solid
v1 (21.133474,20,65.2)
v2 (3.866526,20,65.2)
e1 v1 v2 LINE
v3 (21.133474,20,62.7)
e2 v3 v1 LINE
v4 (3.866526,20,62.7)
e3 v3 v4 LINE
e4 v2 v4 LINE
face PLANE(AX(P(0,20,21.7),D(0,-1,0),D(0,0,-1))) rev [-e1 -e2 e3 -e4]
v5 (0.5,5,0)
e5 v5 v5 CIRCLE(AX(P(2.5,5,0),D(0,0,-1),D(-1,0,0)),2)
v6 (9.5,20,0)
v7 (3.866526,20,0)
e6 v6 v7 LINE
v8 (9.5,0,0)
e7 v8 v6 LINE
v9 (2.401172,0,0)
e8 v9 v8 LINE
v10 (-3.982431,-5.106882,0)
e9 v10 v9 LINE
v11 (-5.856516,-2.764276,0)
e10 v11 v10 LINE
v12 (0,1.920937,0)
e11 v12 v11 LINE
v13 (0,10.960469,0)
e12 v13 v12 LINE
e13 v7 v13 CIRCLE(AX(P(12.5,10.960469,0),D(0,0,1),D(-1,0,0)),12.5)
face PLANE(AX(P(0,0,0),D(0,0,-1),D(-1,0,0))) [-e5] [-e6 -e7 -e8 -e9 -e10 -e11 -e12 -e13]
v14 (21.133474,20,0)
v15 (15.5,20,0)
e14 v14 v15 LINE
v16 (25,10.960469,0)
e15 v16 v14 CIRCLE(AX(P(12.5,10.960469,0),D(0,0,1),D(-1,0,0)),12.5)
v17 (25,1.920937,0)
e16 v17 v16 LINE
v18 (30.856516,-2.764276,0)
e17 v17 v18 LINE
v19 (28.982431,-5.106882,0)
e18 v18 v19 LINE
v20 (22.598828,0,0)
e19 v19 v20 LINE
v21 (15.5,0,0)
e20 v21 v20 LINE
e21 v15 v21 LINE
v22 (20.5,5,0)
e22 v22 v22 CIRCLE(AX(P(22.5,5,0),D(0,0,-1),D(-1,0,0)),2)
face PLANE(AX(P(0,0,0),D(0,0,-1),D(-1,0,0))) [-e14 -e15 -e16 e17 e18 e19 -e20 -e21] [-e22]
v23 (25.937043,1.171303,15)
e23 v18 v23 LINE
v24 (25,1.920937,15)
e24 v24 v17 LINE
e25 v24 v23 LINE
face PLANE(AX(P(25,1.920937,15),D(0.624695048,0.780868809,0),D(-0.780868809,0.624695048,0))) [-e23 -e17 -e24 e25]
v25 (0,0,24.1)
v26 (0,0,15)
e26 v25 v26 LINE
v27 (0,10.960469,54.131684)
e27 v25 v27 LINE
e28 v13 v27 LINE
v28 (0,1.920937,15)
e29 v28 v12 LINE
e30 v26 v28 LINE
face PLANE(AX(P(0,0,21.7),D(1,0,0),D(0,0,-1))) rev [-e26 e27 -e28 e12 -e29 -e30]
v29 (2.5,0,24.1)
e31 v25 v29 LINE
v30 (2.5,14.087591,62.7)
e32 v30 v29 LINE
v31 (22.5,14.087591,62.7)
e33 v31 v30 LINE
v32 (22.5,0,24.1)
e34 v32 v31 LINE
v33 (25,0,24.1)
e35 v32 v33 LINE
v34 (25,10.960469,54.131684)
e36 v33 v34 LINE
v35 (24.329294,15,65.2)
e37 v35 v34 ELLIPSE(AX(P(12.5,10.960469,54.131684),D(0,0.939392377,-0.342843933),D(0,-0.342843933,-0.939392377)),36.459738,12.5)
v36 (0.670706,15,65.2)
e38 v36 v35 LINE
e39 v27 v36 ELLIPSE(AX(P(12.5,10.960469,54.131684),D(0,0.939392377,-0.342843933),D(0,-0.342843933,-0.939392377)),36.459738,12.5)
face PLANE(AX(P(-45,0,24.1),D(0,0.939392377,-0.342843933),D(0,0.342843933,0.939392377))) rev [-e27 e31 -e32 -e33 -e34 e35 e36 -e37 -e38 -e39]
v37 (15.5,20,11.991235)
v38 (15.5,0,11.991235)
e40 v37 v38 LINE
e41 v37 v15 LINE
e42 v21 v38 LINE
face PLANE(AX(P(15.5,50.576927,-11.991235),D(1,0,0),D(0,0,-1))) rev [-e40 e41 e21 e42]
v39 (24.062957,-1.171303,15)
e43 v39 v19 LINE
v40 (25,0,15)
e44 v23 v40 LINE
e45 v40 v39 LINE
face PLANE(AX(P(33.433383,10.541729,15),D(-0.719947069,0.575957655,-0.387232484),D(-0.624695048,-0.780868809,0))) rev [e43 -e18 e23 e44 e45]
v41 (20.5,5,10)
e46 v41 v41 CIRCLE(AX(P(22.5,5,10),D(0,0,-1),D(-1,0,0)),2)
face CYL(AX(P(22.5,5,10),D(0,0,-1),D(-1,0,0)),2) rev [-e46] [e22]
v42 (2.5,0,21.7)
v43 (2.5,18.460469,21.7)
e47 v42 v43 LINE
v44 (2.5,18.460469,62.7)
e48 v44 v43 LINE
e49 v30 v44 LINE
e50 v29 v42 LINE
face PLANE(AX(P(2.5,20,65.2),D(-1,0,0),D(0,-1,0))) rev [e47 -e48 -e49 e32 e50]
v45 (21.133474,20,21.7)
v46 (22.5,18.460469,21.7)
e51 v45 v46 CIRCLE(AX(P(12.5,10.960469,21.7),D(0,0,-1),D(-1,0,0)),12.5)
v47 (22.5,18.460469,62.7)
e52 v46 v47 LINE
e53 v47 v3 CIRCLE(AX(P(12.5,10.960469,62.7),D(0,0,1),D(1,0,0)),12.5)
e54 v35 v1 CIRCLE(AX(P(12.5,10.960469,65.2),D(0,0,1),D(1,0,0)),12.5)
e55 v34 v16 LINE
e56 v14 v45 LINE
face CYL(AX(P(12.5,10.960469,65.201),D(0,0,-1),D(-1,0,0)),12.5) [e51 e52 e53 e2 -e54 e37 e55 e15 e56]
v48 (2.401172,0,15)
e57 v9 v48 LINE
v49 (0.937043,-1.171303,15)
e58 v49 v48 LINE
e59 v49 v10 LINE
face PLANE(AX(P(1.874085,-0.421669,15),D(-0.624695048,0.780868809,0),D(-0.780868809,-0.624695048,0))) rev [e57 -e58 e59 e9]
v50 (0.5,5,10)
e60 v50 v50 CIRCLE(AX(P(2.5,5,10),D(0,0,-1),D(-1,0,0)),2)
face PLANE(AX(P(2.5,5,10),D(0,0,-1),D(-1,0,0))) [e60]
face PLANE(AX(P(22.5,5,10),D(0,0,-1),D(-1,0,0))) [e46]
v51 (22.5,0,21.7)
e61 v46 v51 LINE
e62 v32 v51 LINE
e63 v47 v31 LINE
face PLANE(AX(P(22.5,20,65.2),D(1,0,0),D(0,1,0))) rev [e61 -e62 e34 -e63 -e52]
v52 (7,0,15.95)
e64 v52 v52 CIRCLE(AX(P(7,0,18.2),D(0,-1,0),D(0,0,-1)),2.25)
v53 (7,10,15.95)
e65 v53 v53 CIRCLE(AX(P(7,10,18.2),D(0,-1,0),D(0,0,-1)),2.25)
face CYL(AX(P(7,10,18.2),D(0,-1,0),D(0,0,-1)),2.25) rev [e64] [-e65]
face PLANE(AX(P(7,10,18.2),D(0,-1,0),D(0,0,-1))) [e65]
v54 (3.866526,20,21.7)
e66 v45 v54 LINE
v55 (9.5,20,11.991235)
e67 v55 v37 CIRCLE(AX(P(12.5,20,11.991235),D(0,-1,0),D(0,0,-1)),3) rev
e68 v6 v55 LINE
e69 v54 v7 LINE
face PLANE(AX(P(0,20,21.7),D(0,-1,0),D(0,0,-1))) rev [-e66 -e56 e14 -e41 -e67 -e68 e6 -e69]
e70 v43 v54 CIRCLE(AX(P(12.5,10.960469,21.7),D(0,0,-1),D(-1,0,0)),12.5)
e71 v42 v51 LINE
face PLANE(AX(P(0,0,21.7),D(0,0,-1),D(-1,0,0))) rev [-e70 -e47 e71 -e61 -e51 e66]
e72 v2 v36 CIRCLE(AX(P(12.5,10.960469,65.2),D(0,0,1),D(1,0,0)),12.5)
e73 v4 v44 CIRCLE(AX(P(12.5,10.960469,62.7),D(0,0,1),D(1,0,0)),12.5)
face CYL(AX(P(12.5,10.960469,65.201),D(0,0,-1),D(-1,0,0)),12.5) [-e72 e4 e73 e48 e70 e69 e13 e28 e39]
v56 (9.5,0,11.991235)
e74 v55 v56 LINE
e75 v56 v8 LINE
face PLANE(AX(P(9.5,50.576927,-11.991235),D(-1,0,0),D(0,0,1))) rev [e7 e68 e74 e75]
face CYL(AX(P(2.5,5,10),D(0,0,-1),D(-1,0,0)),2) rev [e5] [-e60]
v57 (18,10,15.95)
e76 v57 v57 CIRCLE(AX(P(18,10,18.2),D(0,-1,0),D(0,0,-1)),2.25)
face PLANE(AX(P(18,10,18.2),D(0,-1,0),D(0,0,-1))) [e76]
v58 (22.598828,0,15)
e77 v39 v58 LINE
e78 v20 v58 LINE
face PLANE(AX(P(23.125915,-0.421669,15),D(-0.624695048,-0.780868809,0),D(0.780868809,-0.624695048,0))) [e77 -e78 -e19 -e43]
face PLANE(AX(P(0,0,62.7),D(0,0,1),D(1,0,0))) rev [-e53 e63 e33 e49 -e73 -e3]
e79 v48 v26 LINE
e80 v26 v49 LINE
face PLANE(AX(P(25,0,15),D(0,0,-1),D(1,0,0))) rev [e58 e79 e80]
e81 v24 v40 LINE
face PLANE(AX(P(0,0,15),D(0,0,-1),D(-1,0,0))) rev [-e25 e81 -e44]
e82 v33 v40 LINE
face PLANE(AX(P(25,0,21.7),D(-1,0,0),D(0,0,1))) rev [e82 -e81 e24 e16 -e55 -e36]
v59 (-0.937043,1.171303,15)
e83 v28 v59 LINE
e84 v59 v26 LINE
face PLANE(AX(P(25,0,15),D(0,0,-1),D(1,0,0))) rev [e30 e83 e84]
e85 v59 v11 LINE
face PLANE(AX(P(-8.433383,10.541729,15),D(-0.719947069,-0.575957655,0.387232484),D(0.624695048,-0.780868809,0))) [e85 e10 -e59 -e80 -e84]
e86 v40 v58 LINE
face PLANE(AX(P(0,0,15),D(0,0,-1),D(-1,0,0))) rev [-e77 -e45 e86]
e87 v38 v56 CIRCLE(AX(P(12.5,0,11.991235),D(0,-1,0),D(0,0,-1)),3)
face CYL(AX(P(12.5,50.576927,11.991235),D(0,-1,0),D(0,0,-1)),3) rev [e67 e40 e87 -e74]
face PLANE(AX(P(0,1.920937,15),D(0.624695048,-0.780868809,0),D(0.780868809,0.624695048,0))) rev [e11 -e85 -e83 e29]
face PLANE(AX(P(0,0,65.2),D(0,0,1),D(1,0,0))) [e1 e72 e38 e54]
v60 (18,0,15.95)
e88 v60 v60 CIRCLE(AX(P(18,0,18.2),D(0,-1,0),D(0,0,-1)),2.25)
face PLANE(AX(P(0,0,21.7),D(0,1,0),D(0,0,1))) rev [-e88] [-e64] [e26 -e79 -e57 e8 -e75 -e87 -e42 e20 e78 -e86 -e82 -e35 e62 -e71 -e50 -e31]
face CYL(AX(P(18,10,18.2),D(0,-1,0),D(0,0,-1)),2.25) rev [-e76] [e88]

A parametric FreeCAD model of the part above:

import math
import FreeCAD as App
import Part
import Sketcher

V = App.Vector


def add_polygon(sketch, points):
    """Adds a closed chain of lines whose ends are joined by coincident constraints."""
    first, n = sketch.GeometryCount, len(points)
    for a, b in zip(points, points[1:] + points[:1]):
        sketch.addGeometry(Part.LineSegment(App.Vector(*a, 0), App.Vector(*b, 0)), False)
    for i in range(n):
        sketch.addConstraint(Sketcher.Constraint("Coincident", first + i, 2, first + (i + 1) % n, 1))

doc = App.newDocument("Part")
params = doc.addObject("Spreadsheet::Sheet", "Params")
for row, (alias, value) in enumerate([
    ("sketch1_width", "25 mm"),
    ("sketch1_height", "20 mm"),
    ("pad1_length", "21.7 mm"),
    ("sketch2_height", "20 mm"),
    ("sketch2_width", "2.5 mm"),
    ("pad2_length", "43.5 mm"),
    ("sketch3_width", "25 mm"),
    ("sketch3_height", "20 mm"),
    ("pad3_length", "2.5 mm"),
    ("sketch4_diameter", "4.5 mm"),
    ("pocket1_length", "10 mm"),
    ("sketch5_diameter", "4 mm"),
    ("pocket2_length", "10 mm"),
    ("sketch6_width", "15 mm"),
    ("sketch6_height", "41.1 mm"),
    ("pocket3_length", "70 mm"),
    ("sketch7_length", "3 mm"),
    ("sketch7_length2", "7.5 mm"),
    ("pad4_length", "15 mm"),
    ("sketch8_height", "15 mm"),
    ("sketch8_width", "6.3 mm"),
    ("pocket4_length", "15 mm"),
    ("sketch9_radius", "3 mm"),
    ("pocket5_length", "20 mm"),
    ("sketch10_radius", "12.5 mm"),
    ("pocket6_length", "65.2 mm"),
], start=1):
    params.set(f"A{row}", alias)
    params.set(f"B{row}", "=" + value)
    params.setAlias(f"B{row}", alias)

body = doc.addObject("PartDesign::Body", "Body")

sketch1 = body.newObject("Sketcher::SketchObject", "Sketch")
sketch1.AttachmentSupport = (doc.getObject("XY_Plane"), [""])
sketch1.MapMode = "FlatFace"
add_polygon(sketch1, [(0, 20), (0, 0), (25, 0), (25, 20)])
sketch1.addConstraint([
    Sketcher.Constraint("Vertical", 0),
    Sketcher.Constraint("Horizontal", 1),
    Sketcher.Constraint("Vertical", 2),
    Sketcher.Constraint("Horizontal", 3),
    Sketcher.Constraint("Coincident", 0, 2, -1, 1),
    Sketcher.Constraint("DistanceX", 1, 1, 1, 2, 25.0),
    Sketcher.Constraint("DistanceY", 0, 2, 0, 1, 20.0),
])
sketch1.setExpression("Constraints[9]", "Params.sketch1_width")
sketch1.setExpression("Constraints[10]", "Params.sketch1_height")
pad1 = body.newObject("PartDesign::Pad", "Pad")
pad1.Profile = sketch1
pad1.setExpression("Length", "Params.pad1_length")

sketch2 = body.newObject("Sketcher::SketchObject", "Sketch001")
sketch2.AttachmentSupport = (doc.getObject("XY_Plane"), [""])
sketch2.MapMode = "FlatFace"
sketch2.AttachmentOffset = App.Placement(V(0, 0, 21.7), App.Rotation())
add_polygon(sketch2, [(0, 20), (0, 0), (2.5, 0), (2.5, 20)])
add_polygon(sketch2, [(22.5, 20), (22.5, 0), (25, 0), (25, 20)])
sketch2.addConstraint([
    Sketcher.Constraint("Vertical", 0),
    Sketcher.Constraint("Horizontal", 1),
    Sketcher.Constraint("Vertical", 2),
    Sketcher.Constraint("Horizontal", 3),
    Sketcher.Constraint("Vertical", 4),
    Sketcher.Constraint("Horizontal", 5),
    Sketcher.Constraint("Vertical", 6),
    Sketcher.Constraint("Horizontal", 7),
    Sketcher.Constraint("Coincident", 0, 2, -1, 1),
    Sketcher.Constraint("PointOnObject", 4, 2, -1),
    Sketcher.Constraint("Horizontal", 3, 2, 6, 2),
    Sketcher.Constraint("Equal", 3, 5),
    Sketcher.Constraint("DistanceY", 0, 2, 0, 1, 20.0),
    Sketcher.Constraint("DistanceX", 1, 1, 1, 2, 2.5),
    Sketcher.Constraint("DistanceX", -1, 1, 5, 2, 25.0),
])
sketch2.setExpression("Constraints[20]", "Params.sketch2_height")
sketch2.setExpression("Constraints[21]", "Params.sketch2_width")
pad2 = body.newObject("PartDesign::Pad", "Pad001")
pad2.Profile = sketch2
pad2.setExpression("Length", "Params.pad2_length")

sketch3 = body.newObject("Sketcher::SketchObject", "Sketch002")
sketch3.AttachmentSupport = (doc.getObject("XY_Plane"), [""])
sketch3.MapMode = "FlatFace"
sketch3.AttachmentOffset = App.Placement(V(0, 0, 65.2), App.Rotation())
add_polygon(sketch3, [(0, 20), (0, 0), (25, 0), (25, 20)])
sketch3.addConstraint([
    Sketcher.Constraint("Vertical", 0),
    Sketcher.Constraint("Horizontal", 1),
    Sketcher.Constraint("Vertical", 2),
    Sketcher.Constraint("Horizontal", 3),
    Sketcher.Constraint("Coincident", 0, 2, -1, 1),
    Sketcher.Constraint("DistanceX", 1, 1, 1, 2, 25.0),
    Sketcher.Constraint("DistanceY", 0, 2, 0, 1, 20.0),
])
sketch3.setExpression("Constraints[9]", "Params.sketch3_width")
sketch3.setExpression("Constraints[10]", "Params.sketch3_height")
pad3 = body.newObject("PartDesign::Pad", "Pad002")
pad3.Profile = sketch3
pad3.setExpression("Length", "Params.pad3_length")
pad3.Reversed = True

sketch4 = body.newObject("Sketcher::SketchObject", "Sketch003")
sketch4.AttachmentSupport = (doc.getObject("XZ_Plane"), [""])
sketch4.MapMode = "FlatFace"
sketch4.addGeometry([
    Part.Circle(V(7, 18.2, 0), V(0, 0, 1), 2.2),
    Part.Circle(V(18, 18.2, 0), V(0, 0, 1), 2.2),
], False)
sketch4.addConstraint([
    Sketcher.Constraint("Equal", 0, 1),
    Sketcher.Constraint("Horizontal", 0, 3, 1, 3),
    Sketcher.Constraint("Diameter", 0, 4.5),
    Sketcher.Constraint("DistanceX", -1, 1, 0, 3, 7.0),
    Sketcher.Constraint("DistanceX", -1, 1, 1, 3, 18.0),
    Sketcher.Constraint("DistanceY", -1, 1, 0, 3, 18.2),
])
sketch4.setExpression("Constraints[2]", "Params.sketch4_diameter")
pocket1 = body.newObject("PartDesign::Pocket", "Pocket")
pocket1.Profile = sketch4
pocket1.setExpression("Length", "Params.pocket1_length")

sketch5 = body.newObject("Sketcher::SketchObject", "Sketch004")
sketch5.AttachmentSupport = (doc.getObject("XY_Plane"), [""])
sketch5.MapMode = "FlatFace"
sketch5.addGeometry([
    Part.Circle(V(2.5, 5, 0), V(0, 0, 1), 2),
    Part.Circle(V(22.5, 5, 0), V(0, 0, 1), 2),
], False)
sketch5.addConstraint([
    Sketcher.Constraint("Equal", 0, 1),
    Sketcher.Constraint("Horizontal", 0, 3, 1, 3),
    Sketcher.Constraint("Diameter", 0, 4.0),
    Sketcher.Constraint("DistanceY", -1, 1, 0, 3, 5.0),
    Sketcher.Constraint("DistanceX", 0, 3, 1, 3, 20.0),
    Sketcher.Constraint("DistanceX", -1, 1, 0, 3, 2.5),
])
sketch5.setExpression("Constraints[2]", "Params.sketch5_diameter")
pocket2 = body.newObject("PartDesign::Pocket", "Pocket001")
pocket2.Profile = sketch5
pocket2.setExpression("Length", "Params.pocket2_length")
pocket2.Reversed = True

sketch6 = body.newObject("Sketcher::SketchObject", "Sketch005")
sketch6.AttachmentSupport = (doc.getObject("YZ_Plane"), [""])
sketch6.MapMode = "FlatFace"
sketch6.AttachmentOffset = App.Placement(V(0, 0, 25), App.Rotation())
add_polygon(sketch6, [(0, 65), (0, 24), (15, 65)])
sketch6.addConstraint([
    Sketcher.Constraint("Vertical", 0),
    Sketcher.Constraint("Horizontal", 2),
    Sketcher.Constraint("PointOnObject", 0, 2, -2),
    Sketcher.Constraint("DistanceX", 2, 2, 2, 1, 15.0),
    Sketcher.Constraint("DistanceY", 0, 2, 0, 1, 41.1),
    Sketcher.Constraint("DistanceY", -1, 1, 0, 2, 24.1),
])
sketch6.setExpression("Constraints[6]", "Params.sketch6_width")
sketch6.setExpression("Constraints[7]", "Params.sketch6_height")
pocket3 = body.newObject("PartDesign::Pocket", "Pocket002")
pocket3.Profile = sketch6
pocket3.setExpression("Length", "Params.pocket3_length")

sketch7 = body.newObject("Sketcher::SketchObject", "Sketch006")
sketch7.AttachmentSupport = (doc.getObject("XY_Plane"), [""])
sketch7.MapMode = "FlatFace"
add_polygon(sketch7, [(25, 1.9), (30.9, -2.8), (29, -5.1), (23.1, -0.4), (21.6, 0.8)])
sketch7.addConstraint([
    Sketcher.Constraint("Perpendicular", 0, 1),
    Sketcher.Constraint("Perpendicular", 1, 2),
    Sketcher.Constraint("Parallel", 2, 3),
    Sketcher.Constraint("Equal", 0, 2),
    Sketcher.Constraint("Distance", 1, 3.0),
    Sketcher.Constraint("DistanceX", -1, 1, 4, 2, 25.0),
    Sketcher.Constraint("Distance", 0, 7.5),
    Sketcher.Constraint("DistanceY", -1, 1, 3, 2, 0.7733),
    Sketcher.Constraint("DistanceX", 2, 2, 0, 2, 7.730601),
    Sketcher.Constraint("DistanceY", 2, 2, -1, 1, 0.421669),
])
sketch7.setExpression("Constraints[9]", "Params.sketch7_length")
sketch7.setExpression("Constraints[11]", "Params.sketch7_length2")
pad4 = body.newObject("PartDesign::Pad", "Pad003")
pad4.Profile = sketch7
pad4.setExpression("Length", "Params.pad4_length")

sketch8 = body.newObject("Sketcher::SketchObject", "Sketch007")
sketch8.Placement = App.Placement(V(8.819055, 11.023819, 0), App.Rotation(V(0.780868809, -0.624695048, 0), V(0, 0, 1), V(-0.624695048, -0.780868809, 0), "ZXY"))
add_polygon(sketch8, [(20, 15), (26, 0), (26, 15)])
sketch8.addConstraint([
    Sketcher.Constraint("Vertical", 1),
    Sketcher.Constraint("Horizontal", 2),
    Sketcher.Constraint("PointOnObject", 0, 2, -1),
    Sketcher.Constraint("DistanceY", 1, 1, 1, 2, 15.0),
    Sketcher.Constraint("DistanceX", 2, 2, 2, 1, 6.3),
    Sketcher.Constraint("DistanceX", -1, 1, 0, 2, 25.82172),
])
sketch8.setExpression("Constraints[6]", "Params.sketch8_height")
sketch8.setExpression("Constraints[7]", "Params.sketch8_width")
pocket4 = body.newObject("PartDesign::Pocket", "Pocket003")
pocket4.Profile = sketch8
pocket4.setExpression("Length", "Params.pocket4_length")
doc.recompute()

datumplane = body.newObject("PartDesign::Plane", "DatumPlane")
datumplane.AttachmentSupport = (doc.getObject("YZ_Plane"), [""])
datumplane.MapMode = "FlatFace"
datumplane.AttachmentOffset = App.Placement(V(0, 0, 12.5), App.Rotation())
mirrored = body.newObject("PartDesign::Mirrored", "Mirrored")
mirrored.Originals = [pad4, pocket4]
mirrored.MirrorPlane = (datumplane, [""])
body.Tip = mirrored

sketch9 = body.newObject("Sketcher::SketchObject", "Sketch008")
sketch9.AttachmentSupport = (doc.getObject("XZ_Plane"), [""])
sketch9.MapMode = "FlatFace"
sketch9.addGeometry([
    Part.LineSegment(V(9.5, 12, 0), V(9.5, -12, 0)),
    Part.ArcOfCircle(Part.Circle(V(12.5, -12, 0), V(0, 0, 1), 3), math.radians(180), math.radians(360)),
    Part.LineSegment(V(15.5, -12, 0), V(15.5, 12, 0)),
    Part.ArcOfCircle(Part.Circle(V(12.5, 12, 0), V(0, 0, 1), 3), math.radians(0), math.radians(180)),
], False)
sketch9.addConstraint([
    Sketcher.Constraint("Tangent", 0, 2, 1, 1),
    Sketcher.Constraint("Tangent", 1, 2, 2, 1),
    Sketcher.Constraint("Tangent", 2, 2, 3, 1),
    Sketcher.Constraint("Tangent", 3, 2, 0, 1),
    Sketcher.Constraint("Vertical", 0),
    Sketcher.Constraint("Vertical", 2),
    Sketcher.Constraint("Radius", 1, 3.0),
    Sketcher.Constraint("DistanceX", -1, 1, 1, 3, 12.5),
    Sketcher.Constraint("DistanceY", 0, 2, 0, 1, 23.98247),
    Sketcher.Constraint("DistanceY", 1, 3, -1, 1, 11.991235),
])
sketch9.setExpression("Constraints[6]", "Params.sketch9_radius")
pocket5 = body.newObject("PartDesign::Pocket", "Pocket004")
pocket5.Profile = sketch9
pocket5.setExpression("Length", "Params.pocket5_length")

sketch10 = body.newObject("Sketcher::SketchObject", "Sketch009")
sketch10.AttachmentSupport = (doc.getObject("XY_Plane"), [""])
sketch10.MapMode = "FlatFace"
sketch10.AttachmentOffset = App.Placement(V(0, 0, 65.2), App.Rotation())
sketch10.addGeometry([
    Part.LineSegment(V(28, 24, 0), V(25, 11, 0)),
    Part.ArcOfCircle(Part.Circle(V(12, 11, 0), V(0, 0, 1), 12), math.radians(0), math.radians(180)),
    Part.LineSegment(V(0, 11, 0), V(-3, 24, 0)),
    Part.LineSegment(V(-3, 24, 0), V(28, 24, 0)),
], False)
sketch10.addConstraint([
    Sketcher.Constraint("Coincident", 0, 2, 1, 1),
    Sketcher.Constraint("Coincident", 1, 2, 2, 1),
    Sketcher.Constraint("Coincident", 2, 2, 3, 1),
    Sketcher.Constraint("Coincident", 3, 2, 0, 1),
    Sketcher.Constraint("Horizontal", 3),
    Sketcher.Constraint("PointOnObject", 1, 2, -2),
    Sketcher.Constraint("Horizontal", 1, 3, 0, 2),
    Sketcher.Constraint("Horizontal", 0, 2, 1, 2),
    Sketcher.Constraint("Radius", 1, 12.5),
    Sketcher.Constraint("DistanceX", 3, 1, 3, 2, 30.584109),
    Sketcher.Constraint("Distance", 0, 13.413028),
    Sketcher.Constraint("DistanceY", -1, 1, 1, 3, 10.960469),
    Sketcher.Constraint("DistanceY", -1, 1, 2, 2, 24.120971),
])
sketch10.setExpression("Constraints[8]", "Params.sketch10_radius")
pocket6 = body.newObject("PartDesign::Pocket", "Pocket005")
pocket6.Profile = sketch10
pocket6.setExpression("Length", "Params.pocket6_length")

doc.recompute()
